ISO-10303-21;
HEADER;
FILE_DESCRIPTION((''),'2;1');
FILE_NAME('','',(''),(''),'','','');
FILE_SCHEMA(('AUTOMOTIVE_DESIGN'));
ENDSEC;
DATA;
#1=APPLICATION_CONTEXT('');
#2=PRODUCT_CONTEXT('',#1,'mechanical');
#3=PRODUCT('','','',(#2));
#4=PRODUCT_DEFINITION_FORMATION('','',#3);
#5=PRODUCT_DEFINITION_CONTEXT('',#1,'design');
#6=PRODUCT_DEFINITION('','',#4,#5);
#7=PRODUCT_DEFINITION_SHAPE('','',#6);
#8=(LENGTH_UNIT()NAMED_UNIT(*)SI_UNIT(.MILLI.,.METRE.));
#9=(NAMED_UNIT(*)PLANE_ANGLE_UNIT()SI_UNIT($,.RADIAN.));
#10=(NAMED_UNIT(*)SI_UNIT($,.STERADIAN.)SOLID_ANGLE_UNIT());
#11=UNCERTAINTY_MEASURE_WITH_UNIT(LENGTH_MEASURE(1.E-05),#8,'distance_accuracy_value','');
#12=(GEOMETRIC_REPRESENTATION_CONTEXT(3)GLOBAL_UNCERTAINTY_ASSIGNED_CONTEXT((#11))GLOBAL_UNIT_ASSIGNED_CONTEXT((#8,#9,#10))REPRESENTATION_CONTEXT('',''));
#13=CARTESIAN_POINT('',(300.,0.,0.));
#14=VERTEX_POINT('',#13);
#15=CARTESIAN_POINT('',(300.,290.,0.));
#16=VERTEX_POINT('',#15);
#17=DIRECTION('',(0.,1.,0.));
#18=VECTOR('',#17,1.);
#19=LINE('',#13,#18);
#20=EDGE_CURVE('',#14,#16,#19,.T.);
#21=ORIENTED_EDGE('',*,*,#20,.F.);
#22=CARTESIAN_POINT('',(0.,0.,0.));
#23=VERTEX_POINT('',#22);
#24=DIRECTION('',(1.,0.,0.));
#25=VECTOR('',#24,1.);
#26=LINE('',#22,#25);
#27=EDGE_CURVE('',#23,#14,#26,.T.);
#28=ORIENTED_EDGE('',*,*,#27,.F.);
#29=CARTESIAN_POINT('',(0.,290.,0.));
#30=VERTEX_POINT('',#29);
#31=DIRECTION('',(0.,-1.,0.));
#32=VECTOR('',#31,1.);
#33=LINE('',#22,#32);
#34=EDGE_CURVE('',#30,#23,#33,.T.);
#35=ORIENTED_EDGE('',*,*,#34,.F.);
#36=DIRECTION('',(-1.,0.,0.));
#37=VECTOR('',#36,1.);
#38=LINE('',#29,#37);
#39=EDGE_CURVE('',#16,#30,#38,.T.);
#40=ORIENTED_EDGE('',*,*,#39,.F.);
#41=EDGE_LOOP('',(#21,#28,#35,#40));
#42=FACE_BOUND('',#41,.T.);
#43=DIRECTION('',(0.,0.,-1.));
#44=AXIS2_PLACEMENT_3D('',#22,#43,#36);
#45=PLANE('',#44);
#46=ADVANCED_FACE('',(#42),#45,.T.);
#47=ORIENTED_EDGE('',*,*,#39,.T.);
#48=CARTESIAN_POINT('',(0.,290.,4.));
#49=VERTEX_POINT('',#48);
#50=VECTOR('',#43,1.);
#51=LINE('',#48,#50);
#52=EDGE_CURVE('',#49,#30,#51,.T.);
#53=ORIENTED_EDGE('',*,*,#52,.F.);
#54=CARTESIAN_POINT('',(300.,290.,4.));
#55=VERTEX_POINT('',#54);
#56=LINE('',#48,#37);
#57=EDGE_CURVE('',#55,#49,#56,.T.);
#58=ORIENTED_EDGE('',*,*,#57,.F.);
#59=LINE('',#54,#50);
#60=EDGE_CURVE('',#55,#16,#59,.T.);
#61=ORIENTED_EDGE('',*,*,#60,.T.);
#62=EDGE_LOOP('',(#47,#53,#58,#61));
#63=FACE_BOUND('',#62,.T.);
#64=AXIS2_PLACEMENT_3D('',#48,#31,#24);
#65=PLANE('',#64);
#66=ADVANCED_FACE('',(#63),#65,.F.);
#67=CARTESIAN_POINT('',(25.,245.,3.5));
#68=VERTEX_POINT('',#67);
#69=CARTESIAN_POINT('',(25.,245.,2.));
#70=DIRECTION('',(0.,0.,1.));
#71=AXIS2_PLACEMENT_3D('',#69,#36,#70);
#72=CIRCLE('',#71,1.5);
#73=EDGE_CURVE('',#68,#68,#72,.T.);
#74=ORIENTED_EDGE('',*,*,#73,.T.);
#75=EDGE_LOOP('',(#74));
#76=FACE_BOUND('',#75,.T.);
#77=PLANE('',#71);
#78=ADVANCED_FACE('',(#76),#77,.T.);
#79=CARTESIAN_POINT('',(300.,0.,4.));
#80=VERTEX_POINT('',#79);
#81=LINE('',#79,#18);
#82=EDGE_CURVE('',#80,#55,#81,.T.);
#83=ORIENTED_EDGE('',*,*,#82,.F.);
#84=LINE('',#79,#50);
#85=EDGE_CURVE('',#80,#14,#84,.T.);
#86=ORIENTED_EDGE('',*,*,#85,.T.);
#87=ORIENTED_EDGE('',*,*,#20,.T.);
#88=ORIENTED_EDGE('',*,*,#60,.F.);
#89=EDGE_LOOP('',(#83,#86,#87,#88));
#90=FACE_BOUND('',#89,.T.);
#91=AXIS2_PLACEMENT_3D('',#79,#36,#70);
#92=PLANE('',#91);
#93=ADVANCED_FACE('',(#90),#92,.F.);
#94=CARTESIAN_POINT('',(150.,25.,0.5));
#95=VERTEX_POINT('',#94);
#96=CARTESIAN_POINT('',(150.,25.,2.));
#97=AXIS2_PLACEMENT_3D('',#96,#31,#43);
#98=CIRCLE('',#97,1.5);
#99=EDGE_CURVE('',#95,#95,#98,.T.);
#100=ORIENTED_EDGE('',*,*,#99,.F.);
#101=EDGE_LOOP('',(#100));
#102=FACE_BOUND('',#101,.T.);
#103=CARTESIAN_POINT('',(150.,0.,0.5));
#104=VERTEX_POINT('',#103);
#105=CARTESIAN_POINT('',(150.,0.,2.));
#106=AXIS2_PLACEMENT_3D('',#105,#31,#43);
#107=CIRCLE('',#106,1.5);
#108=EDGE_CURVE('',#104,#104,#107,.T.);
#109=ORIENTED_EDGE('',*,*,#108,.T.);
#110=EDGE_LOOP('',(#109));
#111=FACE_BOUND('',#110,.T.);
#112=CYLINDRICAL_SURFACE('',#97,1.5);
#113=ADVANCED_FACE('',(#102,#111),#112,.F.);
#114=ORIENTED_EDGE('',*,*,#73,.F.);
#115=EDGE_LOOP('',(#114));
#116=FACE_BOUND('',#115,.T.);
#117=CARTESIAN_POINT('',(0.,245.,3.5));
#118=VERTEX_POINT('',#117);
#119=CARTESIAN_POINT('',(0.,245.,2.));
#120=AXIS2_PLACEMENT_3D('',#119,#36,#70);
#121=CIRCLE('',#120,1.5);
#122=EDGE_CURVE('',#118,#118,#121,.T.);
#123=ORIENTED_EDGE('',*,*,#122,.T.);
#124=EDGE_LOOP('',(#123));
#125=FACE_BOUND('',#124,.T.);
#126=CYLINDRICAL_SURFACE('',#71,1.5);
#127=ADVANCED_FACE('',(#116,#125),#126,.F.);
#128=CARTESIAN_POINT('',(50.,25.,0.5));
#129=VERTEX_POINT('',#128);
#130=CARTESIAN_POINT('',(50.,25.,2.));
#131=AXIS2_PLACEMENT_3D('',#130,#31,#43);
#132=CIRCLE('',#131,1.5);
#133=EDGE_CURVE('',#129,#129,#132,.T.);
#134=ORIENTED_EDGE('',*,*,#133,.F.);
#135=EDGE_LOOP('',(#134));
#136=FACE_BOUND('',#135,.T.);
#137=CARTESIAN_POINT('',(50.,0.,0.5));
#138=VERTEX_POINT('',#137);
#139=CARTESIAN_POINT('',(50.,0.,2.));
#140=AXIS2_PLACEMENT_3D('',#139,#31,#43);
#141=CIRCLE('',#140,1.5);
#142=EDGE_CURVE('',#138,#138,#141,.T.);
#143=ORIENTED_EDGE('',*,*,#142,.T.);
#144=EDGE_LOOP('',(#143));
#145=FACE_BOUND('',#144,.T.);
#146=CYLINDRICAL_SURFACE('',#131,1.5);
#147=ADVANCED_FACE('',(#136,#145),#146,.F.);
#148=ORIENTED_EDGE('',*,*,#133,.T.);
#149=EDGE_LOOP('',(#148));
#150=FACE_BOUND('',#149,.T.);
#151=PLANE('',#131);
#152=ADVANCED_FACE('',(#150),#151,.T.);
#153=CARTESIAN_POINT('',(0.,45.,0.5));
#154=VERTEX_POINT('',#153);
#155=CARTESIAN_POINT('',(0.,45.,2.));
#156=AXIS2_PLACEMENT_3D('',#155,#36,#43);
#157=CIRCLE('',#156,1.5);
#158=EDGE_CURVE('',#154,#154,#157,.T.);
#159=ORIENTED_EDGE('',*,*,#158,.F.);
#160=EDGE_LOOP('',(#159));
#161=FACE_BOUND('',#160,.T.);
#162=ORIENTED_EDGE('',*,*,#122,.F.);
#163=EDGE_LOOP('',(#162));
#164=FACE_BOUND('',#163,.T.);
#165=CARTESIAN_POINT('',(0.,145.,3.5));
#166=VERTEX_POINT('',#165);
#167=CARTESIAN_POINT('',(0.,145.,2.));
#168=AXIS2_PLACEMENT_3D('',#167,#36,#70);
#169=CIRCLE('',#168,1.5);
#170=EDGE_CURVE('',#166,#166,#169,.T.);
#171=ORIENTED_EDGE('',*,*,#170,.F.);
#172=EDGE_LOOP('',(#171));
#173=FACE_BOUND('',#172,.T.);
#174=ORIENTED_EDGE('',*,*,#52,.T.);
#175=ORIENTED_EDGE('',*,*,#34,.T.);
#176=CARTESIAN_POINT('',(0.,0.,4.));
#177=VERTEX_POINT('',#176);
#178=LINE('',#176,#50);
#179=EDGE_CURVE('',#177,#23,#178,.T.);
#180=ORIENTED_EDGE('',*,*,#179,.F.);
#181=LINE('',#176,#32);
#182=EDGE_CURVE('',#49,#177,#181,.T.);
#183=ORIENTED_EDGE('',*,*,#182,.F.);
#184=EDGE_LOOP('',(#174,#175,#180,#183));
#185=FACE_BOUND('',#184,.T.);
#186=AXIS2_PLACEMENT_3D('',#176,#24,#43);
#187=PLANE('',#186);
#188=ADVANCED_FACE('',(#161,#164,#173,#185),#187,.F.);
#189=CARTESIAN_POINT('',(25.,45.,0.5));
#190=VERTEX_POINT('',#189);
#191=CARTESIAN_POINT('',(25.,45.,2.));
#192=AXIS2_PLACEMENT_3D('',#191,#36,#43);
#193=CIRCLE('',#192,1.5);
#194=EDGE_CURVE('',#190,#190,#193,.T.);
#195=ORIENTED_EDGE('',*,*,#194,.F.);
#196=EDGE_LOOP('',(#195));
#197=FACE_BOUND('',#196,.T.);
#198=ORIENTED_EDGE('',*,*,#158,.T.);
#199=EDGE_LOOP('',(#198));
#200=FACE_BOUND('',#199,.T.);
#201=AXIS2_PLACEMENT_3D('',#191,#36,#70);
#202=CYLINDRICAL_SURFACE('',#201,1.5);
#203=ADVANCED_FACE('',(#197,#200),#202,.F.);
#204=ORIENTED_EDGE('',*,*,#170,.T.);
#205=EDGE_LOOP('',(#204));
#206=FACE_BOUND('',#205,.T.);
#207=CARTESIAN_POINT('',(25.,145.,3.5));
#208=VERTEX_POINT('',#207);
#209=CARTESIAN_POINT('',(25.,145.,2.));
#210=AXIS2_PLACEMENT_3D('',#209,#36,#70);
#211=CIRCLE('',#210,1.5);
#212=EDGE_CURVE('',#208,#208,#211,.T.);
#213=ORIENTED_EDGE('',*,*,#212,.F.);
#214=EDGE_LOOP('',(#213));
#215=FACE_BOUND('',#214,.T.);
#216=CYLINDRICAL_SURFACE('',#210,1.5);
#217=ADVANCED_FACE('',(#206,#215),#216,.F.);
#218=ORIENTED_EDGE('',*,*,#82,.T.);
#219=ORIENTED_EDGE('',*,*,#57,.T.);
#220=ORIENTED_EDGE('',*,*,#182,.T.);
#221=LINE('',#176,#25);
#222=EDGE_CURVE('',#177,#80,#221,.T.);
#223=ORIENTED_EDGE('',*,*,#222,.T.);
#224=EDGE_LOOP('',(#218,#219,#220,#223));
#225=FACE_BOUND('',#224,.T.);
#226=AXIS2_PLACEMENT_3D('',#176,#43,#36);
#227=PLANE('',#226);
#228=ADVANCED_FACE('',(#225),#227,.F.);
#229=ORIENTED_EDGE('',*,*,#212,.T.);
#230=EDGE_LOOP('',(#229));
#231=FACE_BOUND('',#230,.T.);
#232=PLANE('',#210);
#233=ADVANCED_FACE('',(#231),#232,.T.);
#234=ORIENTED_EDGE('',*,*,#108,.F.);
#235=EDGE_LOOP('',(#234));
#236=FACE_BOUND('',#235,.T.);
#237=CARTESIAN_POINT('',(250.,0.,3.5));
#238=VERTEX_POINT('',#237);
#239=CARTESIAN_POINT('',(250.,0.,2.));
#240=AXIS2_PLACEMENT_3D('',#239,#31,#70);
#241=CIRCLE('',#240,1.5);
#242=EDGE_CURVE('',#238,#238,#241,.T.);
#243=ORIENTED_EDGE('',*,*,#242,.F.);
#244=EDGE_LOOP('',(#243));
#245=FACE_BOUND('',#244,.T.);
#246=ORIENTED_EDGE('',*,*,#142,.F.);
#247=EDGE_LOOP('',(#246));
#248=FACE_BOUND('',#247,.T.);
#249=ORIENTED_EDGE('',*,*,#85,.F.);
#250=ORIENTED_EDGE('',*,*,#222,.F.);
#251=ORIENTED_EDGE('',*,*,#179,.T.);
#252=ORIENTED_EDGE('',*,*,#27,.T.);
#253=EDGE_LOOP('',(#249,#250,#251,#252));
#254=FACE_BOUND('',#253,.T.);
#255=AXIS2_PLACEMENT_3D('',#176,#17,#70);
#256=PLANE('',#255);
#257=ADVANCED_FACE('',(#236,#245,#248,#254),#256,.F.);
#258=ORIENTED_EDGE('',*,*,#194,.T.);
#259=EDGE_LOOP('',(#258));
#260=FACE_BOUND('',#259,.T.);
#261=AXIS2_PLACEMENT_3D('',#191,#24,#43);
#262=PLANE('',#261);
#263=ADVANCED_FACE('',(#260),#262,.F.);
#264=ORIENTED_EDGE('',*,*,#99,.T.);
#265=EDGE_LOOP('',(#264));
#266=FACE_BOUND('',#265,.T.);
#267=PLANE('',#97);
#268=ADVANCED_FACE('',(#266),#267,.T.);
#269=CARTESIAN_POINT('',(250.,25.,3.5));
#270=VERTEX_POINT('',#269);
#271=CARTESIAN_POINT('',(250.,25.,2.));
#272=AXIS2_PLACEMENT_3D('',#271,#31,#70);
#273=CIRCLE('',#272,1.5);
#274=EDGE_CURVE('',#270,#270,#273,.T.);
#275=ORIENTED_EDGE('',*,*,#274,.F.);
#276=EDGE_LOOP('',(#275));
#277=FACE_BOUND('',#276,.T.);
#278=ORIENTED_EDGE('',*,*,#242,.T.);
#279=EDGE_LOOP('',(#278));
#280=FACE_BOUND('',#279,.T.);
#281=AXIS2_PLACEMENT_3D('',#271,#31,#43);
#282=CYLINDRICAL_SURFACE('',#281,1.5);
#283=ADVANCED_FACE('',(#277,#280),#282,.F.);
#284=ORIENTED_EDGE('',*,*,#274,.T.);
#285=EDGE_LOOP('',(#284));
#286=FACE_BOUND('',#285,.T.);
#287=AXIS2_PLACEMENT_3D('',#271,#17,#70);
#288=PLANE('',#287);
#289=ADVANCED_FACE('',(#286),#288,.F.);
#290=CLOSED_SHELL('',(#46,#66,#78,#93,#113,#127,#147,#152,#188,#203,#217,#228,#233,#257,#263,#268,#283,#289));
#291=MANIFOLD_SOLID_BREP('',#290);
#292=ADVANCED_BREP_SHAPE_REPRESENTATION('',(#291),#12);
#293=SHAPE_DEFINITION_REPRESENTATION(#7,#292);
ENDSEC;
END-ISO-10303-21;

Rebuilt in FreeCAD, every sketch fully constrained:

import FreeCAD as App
import Part
import Sketcher

V = App.Vector

doc = App.newDocument("Part")
params = doc.addObject("Spreadsheet::Sheet", "Params")
for row, (alias, value) in enumerate([
    ("sketch1_width", "300 mm"),
    ("pad1_length", "4 mm"),
    ("sketch2_diameter", "3 mm"),
    ("pocket1_length", "25 mm"),
    ("sketch3_width", "300 mm"),
    ("sketch3_height", "10 mm"),
    ("sketch4_diameter", "3 mm"),
    ("pocket3_length", "25 mm"),
], start=1):
    params.set(f"A{row}", alias)
    params.set(f"B{row}", "=" + value)
    params.setAlias(f"B{row}", alias)

body = doc.addObject("PartDesign::Body", "Body")

# Sketch on XY plane
sketch1 = doc.addObject("Sketcher::SketchObject", "Sketch")
body.addObject(sketch1)
sketch1.AttachmentSupport = (doc.XY_Plane, [""])
sketch1.MapMode = "FlatFace"
sketch1.addGeometry([
    Part.LineSegment(V(0, 300, 0), V(0, 0, 0)),
    Part.LineSegment(V(0, 0, 0), V(300, 0, 0)),
    Part.LineSegment(V(300, 0, 0), V(300, 300, 0)),
    Part.LineSegment(V(300, 300, 0), V(0, 300, 0)),
], False)
sketch1.addConstraint([
    Sketcher.Constraint("Coincident", 0, 2, 1, 1),
    Sketcher.Constraint("Coincident", 1, 2, 2, 1),
    Sketcher.Constraint("Coincident", 2, 2, 3, 1),
    Sketcher.Constraint("Coincident", 3, 2, 0, 1),
    Sketcher.Constraint("Vertical", 0),
    Sketcher.Constraint("Horizontal", 1),
    Sketcher.Constraint("Vertical", 2),
    Sketcher.Constraint("Horizontal", 3),
    Sketcher.Constraint("Coincident", 0, 2, -1, 1),
    Sketcher.Constraint("Equal", 3, 0),
    Sketcher.Constraint("DistanceX", 1, 1, 1, 2, 300.0),
])
sketch1.setExpression("Constraints[10]", "Params.sketch1_width")
pad1 = doc.addObject("PartDesign::Pad", "Pad")
body.addObject(pad1)
pad1.Profile = sketch1
pad1.setExpression("Length", "Params.pad1_length")

# Sketch on XZ plane
sketch2 = doc.addObject("Sketcher::SketchObject", "Sketch001")
body.addObject(sketch2)
sketch2.AttachmentSupport = (doc.XZ_Plane, [""])
sketch2.MapMode = "FlatFace"
sketch2.addGeometry([
    Part.Circle(V(50, 2, 0), V(0, 0, 1), 1.5),
    Part.Circle(V(250, 2, 0), V(0, 0, 1), 1.5),
    Part.Circle(V(150, 2, 0), V(0, 0, 1), 1.5),
], False)
sketch2.addConstraint([
    Sketcher.Constraint("Equal", 0, 1),
    Sketcher.Constraint("Equal", 1, 2),
    Sketcher.Constraint("Horizontal", 0, 3, 1, 3),
    Sketcher.Constraint("Horizontal", 1, 3, 2, 3),
    Sketcher.Constraint("Diameter", 0, 3.0),
    Sketcher.Constraint("DistanceX", -1, 1, 0, 3, 50.0),
    Sketcher.Constraint("DistanceY", -1, 1, 0, 3, 2.0),
    Sketcher.Constraint("DistanceX", -1, 1, 1, 3, 250.0),
    Sketcher.Constraint("DistanceX", -1, 1, 2, 3, 150.0),
])
sketch2.setExpression("Constraints[4]", "Params.sketch2_diameter")
pocket1 = doc.addObject("PartDesign::Pocket", "Pocket")
body.addObject(pocket1)
pocket1.Profile = sketch2
pocket1.setExpression("Length", "Params.pocket1_length")

# Sketch on XY plane
sketch3 = doc.addObject("Sketcher::SketchObject", "Sketch002")
body.addObject(sketch3)
sketch3.AttachmentSupport = (doc.XY_Plane, [""])
sketch3.MapMode = "FlatFace"
sketch3.addGeometry([
    Part.LineSegment(V(300, 300, 0), V(300, 290, 0)),
    Part.LineSegment(V(300, 290, 0), V(0, 290, 0)),
    Part.LineSegment(V(0, 290, 0), V(0, 300, 0)),
    Part.LineSegment(V(0, 300, 0), V(300, 300, 0)),
], False)
sketch3.addConstraint([
    Sketcher.Constraint("Coincident", 0, 2, 1, 1),
    Sketcher.Constraint("Coincident", 1, 2, 2, 1),
    Sketcher.Constraint("Coincident", 2, 2, 3, 1),
    Sketcher.Constraint("Coincident", 3, 2, 0, 1),
    Sketcher.Constraint("Vertical", 0),
    Sketcher.Constraint("Horizontal", 1),
    Sketcher.Constraint("Vertical", 2),
    Sketcher.Constraint("Horizontal", 3),
    Sketcher.Constraint("PointOnObject", 1, 2, -2),
    Sketcher.Constraint("DistanceX", 1, 2, 1, 1, 300.0),
    Sketcher.Constraint("DistanceY", 0, 2, 0, 1, 10.0),
    Sketcher.Constraint("DistanceY", -1, 1, 0, 2, 290.0),
])
sketch3.setExpression("Constraints[9]", "Params.sketch3_width")
sketch3.setExpression("Constraints[10]", "Params.sketch3_height")
pocket2 = doc.addObject("PartDesign::Pocket", "Pocket001")
body.addObject(pocket2)
pocket2.Profile = sketch3
pocket2.Type = "ThroughAll"
pocket2.Reversed = True

# Sketch on YZ plane
sketch4 = doc.addObject("Sketcher::SketchObject", "Sketch003")
body.addObject(sketch4)
sketch4.AttachmentSupport = (doc.YZ_Plane, [""])
sketch4.MapMode = "FlatFace"
sketch4.addGeometry([
    Part.Circle(V(245, 2, 0), V(0, 0, 1), 1.5),
    Part.Circle(V(45, 2, 0), V(0, 0, 1), 1.5),
    Part.Circle(V(145, 2, 0), V(0, 0, 1), 1.5),
], False)
sketch4.addConstraint([
    Sketcher.Constraint("Equal", 0, 1),
    Sketcher.Constraint("Equal", 1, 2),
    Sketcher.Constraint("Horizontal", 0, 3, 1, 3),
    Sketcher.Constraint("Horizontal", 1, 3, 2, 3),
    Sketcher.Constraint("Diameter", 0, 3.0),
    Sketcher.Constraint("DistanceX", -1, 1, 0, 3, 245.0),
    Sketcher.Constraint("DistanceY", -1, 1, 0, 3, 2.0),
    Sketcher.Constraint("DistanceX", -1, 1, 1, 3, 45.0),
    Sketcher.Constraint("DistanceX", -1, 1, 2, 3, 145.0),
])
sketch4.setExpression("Constraints[4]", "Params.sketch4_diameter")
pocket3 = doc.addObject("PartDesign::Pocket", "Pocket002")
body.addObject(pocket3)
pocket3.Profile = sketch4
pocket3.setExpression("Length", "Params.pocket3_length")
pocket3.Reversed = True

doc.recompute()
